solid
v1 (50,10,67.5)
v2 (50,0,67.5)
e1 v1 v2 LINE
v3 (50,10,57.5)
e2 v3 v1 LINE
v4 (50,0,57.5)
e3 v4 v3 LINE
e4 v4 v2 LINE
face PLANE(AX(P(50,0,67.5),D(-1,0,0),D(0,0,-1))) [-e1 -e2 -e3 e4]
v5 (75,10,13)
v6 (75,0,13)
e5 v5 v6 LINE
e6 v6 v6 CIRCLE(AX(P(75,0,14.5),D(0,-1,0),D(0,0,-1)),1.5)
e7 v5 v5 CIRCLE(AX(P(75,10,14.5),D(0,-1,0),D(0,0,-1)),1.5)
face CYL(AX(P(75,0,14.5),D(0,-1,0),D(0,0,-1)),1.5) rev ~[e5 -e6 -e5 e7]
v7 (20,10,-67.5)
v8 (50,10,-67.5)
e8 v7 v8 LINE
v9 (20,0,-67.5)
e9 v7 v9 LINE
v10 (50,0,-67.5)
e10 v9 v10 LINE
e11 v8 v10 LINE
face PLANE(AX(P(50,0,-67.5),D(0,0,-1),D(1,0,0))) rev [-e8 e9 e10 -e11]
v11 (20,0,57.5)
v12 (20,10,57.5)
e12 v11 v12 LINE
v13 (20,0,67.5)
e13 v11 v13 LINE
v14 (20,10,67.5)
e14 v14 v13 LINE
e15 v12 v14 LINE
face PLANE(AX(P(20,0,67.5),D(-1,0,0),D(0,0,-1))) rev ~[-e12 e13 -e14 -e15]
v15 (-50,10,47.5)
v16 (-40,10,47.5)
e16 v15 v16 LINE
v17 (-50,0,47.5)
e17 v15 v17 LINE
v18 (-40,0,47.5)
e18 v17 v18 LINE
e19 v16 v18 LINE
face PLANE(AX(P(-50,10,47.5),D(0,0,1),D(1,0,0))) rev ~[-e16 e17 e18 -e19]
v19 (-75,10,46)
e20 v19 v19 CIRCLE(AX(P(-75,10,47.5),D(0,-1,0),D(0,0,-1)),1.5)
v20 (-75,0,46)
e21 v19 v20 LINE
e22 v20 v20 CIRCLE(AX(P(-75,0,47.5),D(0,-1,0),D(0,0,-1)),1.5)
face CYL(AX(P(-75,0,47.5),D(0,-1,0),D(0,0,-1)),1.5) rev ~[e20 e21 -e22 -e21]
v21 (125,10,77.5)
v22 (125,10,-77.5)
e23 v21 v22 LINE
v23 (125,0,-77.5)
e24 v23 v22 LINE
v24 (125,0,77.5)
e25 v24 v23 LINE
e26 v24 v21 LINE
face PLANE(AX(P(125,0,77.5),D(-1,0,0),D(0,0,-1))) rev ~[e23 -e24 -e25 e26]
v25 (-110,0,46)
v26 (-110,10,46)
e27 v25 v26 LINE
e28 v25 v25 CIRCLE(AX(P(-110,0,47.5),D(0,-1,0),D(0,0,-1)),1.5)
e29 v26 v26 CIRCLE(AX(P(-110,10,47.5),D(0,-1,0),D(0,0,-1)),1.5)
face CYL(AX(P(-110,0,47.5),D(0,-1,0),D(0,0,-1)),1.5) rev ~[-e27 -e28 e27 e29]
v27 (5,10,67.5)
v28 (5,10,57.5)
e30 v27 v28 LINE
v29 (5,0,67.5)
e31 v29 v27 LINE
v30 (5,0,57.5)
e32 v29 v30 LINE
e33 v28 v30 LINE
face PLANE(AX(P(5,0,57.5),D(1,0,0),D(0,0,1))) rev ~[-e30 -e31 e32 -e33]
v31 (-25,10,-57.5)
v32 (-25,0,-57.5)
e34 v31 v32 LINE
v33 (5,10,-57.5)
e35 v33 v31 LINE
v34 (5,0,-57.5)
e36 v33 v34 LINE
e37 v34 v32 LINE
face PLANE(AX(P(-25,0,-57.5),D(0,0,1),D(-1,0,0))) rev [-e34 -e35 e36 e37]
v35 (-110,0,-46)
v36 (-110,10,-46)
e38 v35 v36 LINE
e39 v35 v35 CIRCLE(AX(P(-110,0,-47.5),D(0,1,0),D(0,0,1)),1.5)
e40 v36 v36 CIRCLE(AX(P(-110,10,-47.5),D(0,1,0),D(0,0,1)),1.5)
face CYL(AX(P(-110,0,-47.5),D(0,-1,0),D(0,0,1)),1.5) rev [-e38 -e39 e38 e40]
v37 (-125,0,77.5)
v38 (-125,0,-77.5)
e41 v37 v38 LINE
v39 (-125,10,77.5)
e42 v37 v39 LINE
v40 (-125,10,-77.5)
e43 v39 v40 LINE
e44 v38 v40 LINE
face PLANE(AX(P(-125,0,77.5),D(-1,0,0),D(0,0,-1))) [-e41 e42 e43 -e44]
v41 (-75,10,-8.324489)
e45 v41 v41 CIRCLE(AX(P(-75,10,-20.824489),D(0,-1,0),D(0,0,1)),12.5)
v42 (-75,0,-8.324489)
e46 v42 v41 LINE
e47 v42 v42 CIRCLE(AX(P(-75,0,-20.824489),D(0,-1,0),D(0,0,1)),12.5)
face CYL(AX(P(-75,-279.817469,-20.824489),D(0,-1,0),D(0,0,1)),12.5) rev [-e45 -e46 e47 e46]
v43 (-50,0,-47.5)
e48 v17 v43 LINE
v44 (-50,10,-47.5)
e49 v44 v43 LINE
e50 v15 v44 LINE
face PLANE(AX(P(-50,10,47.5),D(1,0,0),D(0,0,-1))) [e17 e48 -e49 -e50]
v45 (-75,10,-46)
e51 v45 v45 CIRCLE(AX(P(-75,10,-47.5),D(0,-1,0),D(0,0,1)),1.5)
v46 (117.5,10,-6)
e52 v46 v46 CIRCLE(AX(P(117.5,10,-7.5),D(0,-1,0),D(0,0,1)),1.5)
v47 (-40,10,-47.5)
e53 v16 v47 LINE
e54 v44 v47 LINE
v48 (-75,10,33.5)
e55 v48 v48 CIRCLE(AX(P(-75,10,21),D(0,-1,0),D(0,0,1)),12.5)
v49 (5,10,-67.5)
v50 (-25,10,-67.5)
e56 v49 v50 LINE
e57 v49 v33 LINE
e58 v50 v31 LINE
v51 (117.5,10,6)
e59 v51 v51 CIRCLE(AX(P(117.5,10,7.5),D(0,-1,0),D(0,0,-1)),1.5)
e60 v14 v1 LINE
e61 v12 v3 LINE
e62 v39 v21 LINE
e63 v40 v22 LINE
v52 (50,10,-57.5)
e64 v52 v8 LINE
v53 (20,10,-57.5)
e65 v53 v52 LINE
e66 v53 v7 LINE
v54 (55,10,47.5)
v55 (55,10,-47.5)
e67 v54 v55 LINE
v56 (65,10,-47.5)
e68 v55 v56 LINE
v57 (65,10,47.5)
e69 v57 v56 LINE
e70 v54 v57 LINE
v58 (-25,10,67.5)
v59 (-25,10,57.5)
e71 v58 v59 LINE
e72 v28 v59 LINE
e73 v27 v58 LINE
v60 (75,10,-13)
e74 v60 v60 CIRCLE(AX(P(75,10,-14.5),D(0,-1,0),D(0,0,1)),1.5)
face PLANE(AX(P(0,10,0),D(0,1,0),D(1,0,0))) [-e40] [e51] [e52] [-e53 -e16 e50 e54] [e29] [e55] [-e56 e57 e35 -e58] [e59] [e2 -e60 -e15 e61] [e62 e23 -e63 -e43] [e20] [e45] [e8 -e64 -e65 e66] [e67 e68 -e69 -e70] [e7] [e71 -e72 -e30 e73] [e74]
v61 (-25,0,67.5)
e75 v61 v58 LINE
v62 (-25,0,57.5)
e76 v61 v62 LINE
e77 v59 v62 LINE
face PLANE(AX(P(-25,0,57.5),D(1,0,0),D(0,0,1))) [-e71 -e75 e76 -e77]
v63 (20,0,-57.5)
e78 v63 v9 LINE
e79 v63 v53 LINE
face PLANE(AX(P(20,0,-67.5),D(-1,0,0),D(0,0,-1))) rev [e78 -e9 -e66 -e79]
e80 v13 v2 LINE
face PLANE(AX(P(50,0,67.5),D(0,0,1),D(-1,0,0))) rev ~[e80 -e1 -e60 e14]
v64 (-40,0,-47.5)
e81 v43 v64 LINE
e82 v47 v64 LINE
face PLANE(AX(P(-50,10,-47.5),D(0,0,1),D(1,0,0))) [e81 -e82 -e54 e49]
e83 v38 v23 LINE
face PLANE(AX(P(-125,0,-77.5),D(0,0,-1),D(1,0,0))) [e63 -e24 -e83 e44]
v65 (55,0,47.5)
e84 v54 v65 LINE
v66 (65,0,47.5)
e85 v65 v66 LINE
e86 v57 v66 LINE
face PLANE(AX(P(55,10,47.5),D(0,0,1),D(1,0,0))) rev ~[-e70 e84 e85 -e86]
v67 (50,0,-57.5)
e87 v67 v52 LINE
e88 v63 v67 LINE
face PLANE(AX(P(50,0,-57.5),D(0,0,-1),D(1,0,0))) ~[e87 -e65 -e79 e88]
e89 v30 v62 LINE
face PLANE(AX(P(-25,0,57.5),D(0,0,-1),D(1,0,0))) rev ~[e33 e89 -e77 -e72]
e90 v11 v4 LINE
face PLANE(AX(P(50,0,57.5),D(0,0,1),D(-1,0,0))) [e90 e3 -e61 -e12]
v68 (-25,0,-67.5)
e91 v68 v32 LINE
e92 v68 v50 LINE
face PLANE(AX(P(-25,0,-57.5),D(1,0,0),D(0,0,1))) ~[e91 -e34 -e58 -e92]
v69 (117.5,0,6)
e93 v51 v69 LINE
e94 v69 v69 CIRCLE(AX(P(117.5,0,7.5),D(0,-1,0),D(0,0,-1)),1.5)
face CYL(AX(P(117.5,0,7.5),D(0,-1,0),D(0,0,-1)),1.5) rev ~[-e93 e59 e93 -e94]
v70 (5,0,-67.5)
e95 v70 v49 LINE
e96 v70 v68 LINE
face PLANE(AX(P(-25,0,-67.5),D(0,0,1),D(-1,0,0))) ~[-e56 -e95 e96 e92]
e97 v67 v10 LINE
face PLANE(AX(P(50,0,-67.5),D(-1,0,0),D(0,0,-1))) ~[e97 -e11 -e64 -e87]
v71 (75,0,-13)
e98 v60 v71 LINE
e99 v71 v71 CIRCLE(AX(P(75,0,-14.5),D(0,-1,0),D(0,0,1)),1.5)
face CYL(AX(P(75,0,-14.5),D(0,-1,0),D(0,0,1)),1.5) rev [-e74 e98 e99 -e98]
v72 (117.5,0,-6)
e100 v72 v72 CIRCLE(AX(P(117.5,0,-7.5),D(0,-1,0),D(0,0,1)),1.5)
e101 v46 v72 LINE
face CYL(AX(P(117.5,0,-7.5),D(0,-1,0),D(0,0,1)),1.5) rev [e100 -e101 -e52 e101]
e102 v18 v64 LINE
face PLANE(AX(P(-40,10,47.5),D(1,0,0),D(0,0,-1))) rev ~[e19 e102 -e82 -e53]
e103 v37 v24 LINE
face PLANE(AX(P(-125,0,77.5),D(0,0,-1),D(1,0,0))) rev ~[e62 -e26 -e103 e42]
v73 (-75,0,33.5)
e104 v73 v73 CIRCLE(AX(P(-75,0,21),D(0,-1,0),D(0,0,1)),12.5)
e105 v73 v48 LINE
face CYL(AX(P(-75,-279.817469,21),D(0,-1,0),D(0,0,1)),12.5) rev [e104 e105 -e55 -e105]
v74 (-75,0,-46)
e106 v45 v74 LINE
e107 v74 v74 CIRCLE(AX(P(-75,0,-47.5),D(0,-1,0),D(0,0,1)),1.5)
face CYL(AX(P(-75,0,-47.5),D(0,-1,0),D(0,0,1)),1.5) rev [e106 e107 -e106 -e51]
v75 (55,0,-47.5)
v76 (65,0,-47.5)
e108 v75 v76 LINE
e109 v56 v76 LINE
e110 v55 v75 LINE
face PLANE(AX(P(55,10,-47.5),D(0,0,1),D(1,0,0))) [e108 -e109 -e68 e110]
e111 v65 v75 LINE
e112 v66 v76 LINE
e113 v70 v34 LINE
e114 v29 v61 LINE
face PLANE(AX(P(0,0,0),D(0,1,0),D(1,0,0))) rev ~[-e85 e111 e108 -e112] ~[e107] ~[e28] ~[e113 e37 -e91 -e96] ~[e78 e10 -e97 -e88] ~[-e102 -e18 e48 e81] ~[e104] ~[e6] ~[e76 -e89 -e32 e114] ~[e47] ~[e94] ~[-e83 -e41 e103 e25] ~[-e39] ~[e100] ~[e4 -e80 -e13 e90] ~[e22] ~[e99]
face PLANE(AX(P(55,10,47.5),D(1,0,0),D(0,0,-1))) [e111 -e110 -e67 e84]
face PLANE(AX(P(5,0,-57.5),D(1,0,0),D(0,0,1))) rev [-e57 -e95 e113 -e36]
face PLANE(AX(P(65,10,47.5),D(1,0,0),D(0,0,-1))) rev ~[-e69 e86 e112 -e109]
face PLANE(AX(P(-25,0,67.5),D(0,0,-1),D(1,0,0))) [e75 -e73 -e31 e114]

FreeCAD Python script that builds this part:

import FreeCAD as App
import Part
import Sketcher
from FreeCAD import Vector
Q = App.Units.Quantity

doc = App.newDocument("Part")
body = doc.addObject("PartDesign::Body", "Body")

# Sketch on XZ plane
sketch1 = body.newObject("Sketcher::SketchObject", "Sketch")
sketch1.AttachmentSupport = (doc.getObject("XZ_Plane"), [""])
sketch1.MapMode = "FlatFace"
sketch1.addGeometry([
    Part.LineSegment(Vector(-125, -78, 0), Vector(-125, 78, 0)),
    Part.LineSegment(Vector(-125, 78, 0), Vector(125, 78, 0)),
    Part.LineSegment(Vector(125, 78, 0), Vector(125, -78, 0)),
    Part.LineSegment(Vector(125, -78, 0), Vector(-125, -78, 0)),
], False)
sketch1.addConstraint([
    Sketcher.Constraint("Coincident", 0, 2, 1, 1),
    Sketcher.Constraint("Coincident", 1, 2, 2, 1),
    Sketcher.Constraint("Coincident", 2, 2, 3, 1),
    Sketcher.Constraint("Coincident", 3, 2, 0, 1),
    Sketcher.Constraint("Vertical", 0),
    Sketcher.Constraint("Horizontal", 1),
    Sketcher.Constraint("Vertical", 2),
    Sketcher.Constraint("Horizontal", 3),
    Sketcher.Constraint("Symmetric", 0, 2, 2, 2, -1, 1),
    Sketcher.Constraint("DistanceX", 1, 1, 1, 2, Q("250 mm")),
    Sketcher.Constraint("DistanceY", 0, 1, 0, 2, Q("155 mm")),
])
pad1 = body.newObject("PartDesign::Pad", "Pad")
pad1.Profile = sketch1
pad1.Length = 10
pad1.Reversed = True

# Sketch on XZ plane
sketch2 = body.newObject("Sketcher::SketchObject", "Sketch001")
sketch2.AttachmentSupport = (doc.getObject("XZ_Plane"), [""])
sketch2.MapMode = "FlatFace"
sketch2.addGeometry(Part.Circle(Vector(-110, 47.5, 0), Vector(0, 0, 1), 1.5), False)
sketch2.addConstraint([
    Sketcher.Constraint("Diameter", 0, Q("3 mm")),
    Sketcher.Constraint("DistanceX", 0, 3, -1, 1, Q("110 mm")),
    Sketcher.Constraint("DistanceY", -1, 1, 0, 3, Q("47.5 mm")),
])
pocket1 = body.newObject("PartDesign::Pocket", "Pocket")
pocket1.Profile = sketch2
pocket1.Length = 10
doc.recompute()

mirrored = body.newObject("PartDesign::Mirrored", "Mirrored")
mirrored.Originals = [pocket1]
mirrored.MirrorPlane = (doc.getObject("XY_Plane"), [""])
body.Tip = mirrored

# Sketch on XZ plane
sketch3 = body.newObject("Sketcher::SketchObject", "Sketch002")
sketch3.AttachmentSupport = (doc.getObject("XZ_Plane"), [""])
sketch3.MapMode = "FlatFace"
sketch3.addGeometry(Part.Circle(Vector(75, 14.5, 0), Vector(0, 0, 1), 1.5), False)
sketch3.addConstraint([
    Sketcher.Constraint("Diameter", 0, Q("3 mm")),
    Sketcher.Constraint("DistanceX", -1, 1, 0, 3, Q("75 mm")),
    Sketcher.Constraint("DistanceY", -1, 1, 0, 3, Q("14.5 mm")),
])
pocket2 = body.newObject("PartDesign::Pocket", "Pocket001")
pocket2.Profile = sketch3
pocket2.Length = 296.83046
pocket2.Midplane = True
doc.recompute()

mirrored2 = body.newObject("PartDesign::Mirrored", "Mirrored001")
mirrored2.Originals = [pocket2]
mirrored2.MirrorPlane = (doc.getObject("XY_Plane"), [""])
body.Tip = mirrored2

# Sketch on XZ plane
sketch4 = body.newObject("Sketcher::SketchObject", "Sketch003")
sketch4.AttachmentSupport = (doc.getObject("XZ_Plane"), [""])
sketch4.MapMode = "FlatFace"
sketch4.AttachmentOffset = App.Placement(Vector(0, 0, -19.5), App.Rotation())
sketch4.addGeometry([
    Part.Circle(Vector(-75, 21, 0), Vector(0, 0, 1), 12),
    Part.Circle(Vector(-75, -21, 0), Vector(0, 0, 1), 12),
], False)
sketch4.addConstraint([
    Sketcher.Constraint("Equal", 0, 1),
    Sketcher.Constraint("Vertical", 0, 3, 1, 3),
    Sketcher.Constraint("Diameter", 0, Q("25 mm")),
    Sketcher.Constraint("DistanceX", 0, 3, -1, 1, Q("75 mm")),
    Sketcher.Constraint("DistanceY", -1, 1, 0, 3, Q("21 mm")),
    Sketcher.Constraint("DistanceY", 1, 3, -1, 1, Q("20.824489 mm")),
])
pocket3 = body.newObject("PartDesign::Pocket", "Pocket002")
pocket3.Profile = sketch4
pocket3.Type = "ThroughAll"
pocket3.Midplane = True

# Sketch on XZ plane
sketch5 = body.newObject("Sketcher::SketchObject", "Sketch004")
sketch5.AttachmentSupport = (doc.getObject("XZ_Plane"), [""])
sketch5.MapMode = "FlatFace"
sketch5.addGeometry(Part.Circle(Vector(-75, 47.5, 0), Vector(0, 0, 1), 1.5), False)
sketch5.addConstraint([
    Sketcher.Constraint("Diameter", 0, Q("3 mm")),
    Sketcher.Constraint("DistanceX", 0, 3, -1, 1, Q("75 mm")),
    Sketcher.Constraint("DistanceY", -1, 1, 0, 3, Q("47.5 mm")),
])
pocket4 = body.newObject("PartDesign::Pocket", "Pocket003")
pocket4.Profile = sketch5
pocket4.Length = 296.83046
pocket4.Midplane = True
doc.recompute()

mirrored3 = body.newObject("PartDesign::Mirrored", "Mirrored002")
mirrored3.Originals = [pocket4]
mirrored3.MirrorPlane = (doc.getObject("XY_Plane"), [""])
body.Tip = mirrored3

# Sketch on XZ plane
sketch6 = body.newObject("Sketcher::SketchObject", "Sketch005")
sketch6.AttachmentSupport = (doc.getObject("XZ_Plane"), [""])
sketch6.MapMode = "FlatFace"
sketch6.addGeometry([
    Part.LineSegment(Vector(-25, 68, 0), Vector(-25, 58, 0)),
    Part.LineSegment(Vector(-25, 58, 0), Vector(5, 58, 0)),
    Part.LineSegment(Vector(5, 58, 0), Vector(5, 68, 0)),
    Part.LineSegment(Vector(5, 68, 0), Vector(-25, 68, 0)),
], False)
sketch6.addConstraint([
    Sketcher.Constraint("Coincident", 0, 2, 1, 1),
    Sketcher.Constraint("Coincident", 1, 2, 2, 1),
    Sketcher.Constraint("Coincident", 2, 2, 3, 1),
    Sketcher.Constraint("Coincident", 3, 2, 0, 1),
    Sketcher.Constraint("Vertical", 0),
    Sketcher.Constraint("Horizontal", 1),
    Sketcher.Constraint("Vertical", 2),
    Sketcher.Constraint("Horizontal", 3),
    Sketcher.Constraint("DistanceX", 1, 1, 1, 2, Q("30 mm")),
    Sketcher.Constraint("DistanceY", 0, 2, 0, 1, Q("10 mm")),
    Sketcher.Constraint("DistanceX", 0, 2, -1, 1, Q("25 mm")),
    Sketcher.Constraint("DistanceY", -1, 1, 0, 2, Q("57.5 mm")),
])
pocket5 = body.newObject("PartDesign::Pocket", "Pocket004")
pocket5.Profile = sketch6
pocket5.Length = 296.83046
pocket5.Midplane = True

# Sketch on XZ plane
sketch7 = body.newObject("Sketcher::SketchObject", "Sketch006")
sketch7.AttachmentSupport = (doc.getObject("XZ_Plane"), [""])
sketch7.MapMode = "FlatFace"
sketch7.addGeometry([
    Part.LineSegment(Vector(50, 58, 0), Vector(50, 68, 0)),
    Part.LineSegment(Vector(50, 68, 0), Vector(20, 68, 0)),
    Part.LineSegment(Vector(20, 68, 0), Vector(20, 58, 0)),
    Part.LineSegment(Vector(20, 58, 0), Vector(50, 58, 0)),
], False)
sketch7.addConstraint([
    Sketcher.Constraint("Coincident", 0, 2, 1, 1),
    Sketcher.Constraint("Coincident", 1, 2, 2, 1),
    Sketcher.Constraint("Coincident", 2, 2, 3, 1),
    Sketcher.Constraint("Coincident", 3, 2, 0, 1),
    Sketcher.Constraint("Vertical", 0),
    Sketcher.Constraint("Horizontal", 1),
    Sketcher.Constraint("Vertical", 2),
    Sketcher.Constraint("Horizontal", 3),
    Sketcher.Constraint("DistanceX", 1, 2, 1, 1, Q("30 mm")),
    Sketcher.Constraint("DistanceY", 0, 1, 0, 2, Q("10 mm")),
    Sketcher.Constraint("DistanceX", -1, 1, 0, 2, Q("50 mm")),
    Sketcher.Constraint("DistanceY", -1, 1, 0, 2, Q("67.5 mm")),
])
pocket6 = body.newObject("PartDesign::Pocket", "Pocket005")
pocket6.Profile = sketch7
pocket6.Length = 296.83046
pocket6.Midplane = True
doc.recompute()

mirrored4 = body.newObject("PartDesign::Mirrored", "Mirrored003")
mirrored4.Originals = [pocket5, pocket6]
mirrored4.MirrorPlane = (doc.getObject("XY_Plane"), [""])
body.Tip = mirrored4

# Sketch on XZ plane
sketch8 = body.newObject("Sketcher::SketchObject", "Sketch007")
sketch8.AttachmentSupport = (doc.getObject("XZ_Plane"), [""])
sketch8.MapMode = "FlatFace"
sketch8.addGeometry(Part.Circle(Vector(117.5, 7.5, 0), Vector(0, 0, 1), 1.5), False)
sketch8.addConstraint([
    Sketcher.Constraint("Diameter", 0, Q("3 mm")),
    Sketcher.Constraint("DistanceX", -1, 1, 0, 3, Q("117.5 mm")),
    Sketcher.Constraint("DistanceY", -1, 1, 0, 3, Q("7.5 mm")),
])
pocket7 = body.newObject("PartDesign::Pocket", "Pocket006")
pocket7.Profile = sketch8
pocket7.Length = 296.83046
pocket7.Midplane = True
doc.recompute()

mirrored5 = body.newObject("PartDesign::Mirrored", "Mirrored004")
mirrored5.Originals = [pocket7]
mirrored5.MirrorPlane = (doc.getObject("XY_Plane"), [""])
body.Tip = mirrored5

# Sketch on XZ plane
sketch9 = body.newObject("Sketcher::SketchObject", "Sketch008")
sketch9.AttachmentSupport = (doc.getObject("XZ_Plane"), [""])
sketch9.MapMode = "FlatFace"
sketch9.AttachmentOffset = App.Placement(Vector(0, 0, -10), App.Rotation())
sketch9.addGeometry([
    Part.LineSegment(Vector(55, -48, 0), Vector(55, 48, 0)),  # 0
    Part.LineSegment(Vector(55, 48, 0), Vector(65, 48, 0)),  # 1
    Part.LineSegment(Vector(65, 48, 0), Vector(65, -48, 0)),  # 2
    Part.LineSegment(Vector(65, -48, 0), Vector(55, -48, 0)),  # 3
    Part.LineSegment(Vector(-50, -48, 0), Vector(-50, 48, 0)),  # 4
    Part.LineSegment(Vector(-50, 48, 0), Vector(-40, 48, 0)),  # 5
    Part.LineSegment(Vector(-40, 48, 0), Vector(-40, -48, 0)),  # 6
    Part.LineSegment(Vector(-40, -48, 0), Vector(-50, -48, 0)),  # 7
], False)
sketch9.addConstraint([
    Sketcher.Constraint("Coincident", 0, 2, 1, 1),
    Sketcher.Constraint("Coincident", 1, 2, 2, 1),
    Sketcher.Constraint("Coincident", 2, 2, 3, 1),
    Sketcher.Constraint("Coincident", 3, 2, 0, 1),
    Sketcher.Constraint("Coincident", 4, 2, 5, 1),
    Sketcher.Constraint("Coincident", 5, 2, 6, 1),
    Sketcher.Constraint("Coincident", 6, 2, 7, 1),
    Sketcher.Constraint("Coincident", 7, 2, 4, 1),
    Sketcher.Constraint("Vertical", 0),
    Sketcher.Constraint("Horizontal", 1),
    Sketcher.Constraint("Vertical", 2),
    Sketcher.Constraint("Horizontal", 3),
    Sketcher.Constraint("Vertical", 4),
    Sketcher.Constraint("Horizontal", 5),
    Sketcher.Constraint("Vertical", 6),
    Sketcher.Constraint("Horizontal", 7),
    Sketcher.Constraint("Horizontal", 1, 2, 4, 2),
    Sketcher.Constraint("Horizontal", 3, 2, 6, 2),
    Sketcher.Constraint("Equal", 3, 5),
    Sketcher.Constraint("DistanceX", 1, 1, 1, 2, Q("10 mm")),
    Sketcher.Constraint("DistanceY", 0, 1, 0, 2, Q("95 mm")),
    Sketcher.Constraint("DistanceX", -1, 1, 0, 2, Q("55 mm")),
    Sketcher.Constraint("DistanceX", 4, 2, -1, 1, Q("50 mm")),
    Sketcher.Constraint("DistanceY", -1, 1, 0, 2, Q("47.5 mm")),
])
pocket8 = body.newObject("PartDesign::Pocket", "Pocket007")
pocket8.Profile = sketch9
pocket8.Length = 10
pocket8.Reversed = True

doc.recompute()
